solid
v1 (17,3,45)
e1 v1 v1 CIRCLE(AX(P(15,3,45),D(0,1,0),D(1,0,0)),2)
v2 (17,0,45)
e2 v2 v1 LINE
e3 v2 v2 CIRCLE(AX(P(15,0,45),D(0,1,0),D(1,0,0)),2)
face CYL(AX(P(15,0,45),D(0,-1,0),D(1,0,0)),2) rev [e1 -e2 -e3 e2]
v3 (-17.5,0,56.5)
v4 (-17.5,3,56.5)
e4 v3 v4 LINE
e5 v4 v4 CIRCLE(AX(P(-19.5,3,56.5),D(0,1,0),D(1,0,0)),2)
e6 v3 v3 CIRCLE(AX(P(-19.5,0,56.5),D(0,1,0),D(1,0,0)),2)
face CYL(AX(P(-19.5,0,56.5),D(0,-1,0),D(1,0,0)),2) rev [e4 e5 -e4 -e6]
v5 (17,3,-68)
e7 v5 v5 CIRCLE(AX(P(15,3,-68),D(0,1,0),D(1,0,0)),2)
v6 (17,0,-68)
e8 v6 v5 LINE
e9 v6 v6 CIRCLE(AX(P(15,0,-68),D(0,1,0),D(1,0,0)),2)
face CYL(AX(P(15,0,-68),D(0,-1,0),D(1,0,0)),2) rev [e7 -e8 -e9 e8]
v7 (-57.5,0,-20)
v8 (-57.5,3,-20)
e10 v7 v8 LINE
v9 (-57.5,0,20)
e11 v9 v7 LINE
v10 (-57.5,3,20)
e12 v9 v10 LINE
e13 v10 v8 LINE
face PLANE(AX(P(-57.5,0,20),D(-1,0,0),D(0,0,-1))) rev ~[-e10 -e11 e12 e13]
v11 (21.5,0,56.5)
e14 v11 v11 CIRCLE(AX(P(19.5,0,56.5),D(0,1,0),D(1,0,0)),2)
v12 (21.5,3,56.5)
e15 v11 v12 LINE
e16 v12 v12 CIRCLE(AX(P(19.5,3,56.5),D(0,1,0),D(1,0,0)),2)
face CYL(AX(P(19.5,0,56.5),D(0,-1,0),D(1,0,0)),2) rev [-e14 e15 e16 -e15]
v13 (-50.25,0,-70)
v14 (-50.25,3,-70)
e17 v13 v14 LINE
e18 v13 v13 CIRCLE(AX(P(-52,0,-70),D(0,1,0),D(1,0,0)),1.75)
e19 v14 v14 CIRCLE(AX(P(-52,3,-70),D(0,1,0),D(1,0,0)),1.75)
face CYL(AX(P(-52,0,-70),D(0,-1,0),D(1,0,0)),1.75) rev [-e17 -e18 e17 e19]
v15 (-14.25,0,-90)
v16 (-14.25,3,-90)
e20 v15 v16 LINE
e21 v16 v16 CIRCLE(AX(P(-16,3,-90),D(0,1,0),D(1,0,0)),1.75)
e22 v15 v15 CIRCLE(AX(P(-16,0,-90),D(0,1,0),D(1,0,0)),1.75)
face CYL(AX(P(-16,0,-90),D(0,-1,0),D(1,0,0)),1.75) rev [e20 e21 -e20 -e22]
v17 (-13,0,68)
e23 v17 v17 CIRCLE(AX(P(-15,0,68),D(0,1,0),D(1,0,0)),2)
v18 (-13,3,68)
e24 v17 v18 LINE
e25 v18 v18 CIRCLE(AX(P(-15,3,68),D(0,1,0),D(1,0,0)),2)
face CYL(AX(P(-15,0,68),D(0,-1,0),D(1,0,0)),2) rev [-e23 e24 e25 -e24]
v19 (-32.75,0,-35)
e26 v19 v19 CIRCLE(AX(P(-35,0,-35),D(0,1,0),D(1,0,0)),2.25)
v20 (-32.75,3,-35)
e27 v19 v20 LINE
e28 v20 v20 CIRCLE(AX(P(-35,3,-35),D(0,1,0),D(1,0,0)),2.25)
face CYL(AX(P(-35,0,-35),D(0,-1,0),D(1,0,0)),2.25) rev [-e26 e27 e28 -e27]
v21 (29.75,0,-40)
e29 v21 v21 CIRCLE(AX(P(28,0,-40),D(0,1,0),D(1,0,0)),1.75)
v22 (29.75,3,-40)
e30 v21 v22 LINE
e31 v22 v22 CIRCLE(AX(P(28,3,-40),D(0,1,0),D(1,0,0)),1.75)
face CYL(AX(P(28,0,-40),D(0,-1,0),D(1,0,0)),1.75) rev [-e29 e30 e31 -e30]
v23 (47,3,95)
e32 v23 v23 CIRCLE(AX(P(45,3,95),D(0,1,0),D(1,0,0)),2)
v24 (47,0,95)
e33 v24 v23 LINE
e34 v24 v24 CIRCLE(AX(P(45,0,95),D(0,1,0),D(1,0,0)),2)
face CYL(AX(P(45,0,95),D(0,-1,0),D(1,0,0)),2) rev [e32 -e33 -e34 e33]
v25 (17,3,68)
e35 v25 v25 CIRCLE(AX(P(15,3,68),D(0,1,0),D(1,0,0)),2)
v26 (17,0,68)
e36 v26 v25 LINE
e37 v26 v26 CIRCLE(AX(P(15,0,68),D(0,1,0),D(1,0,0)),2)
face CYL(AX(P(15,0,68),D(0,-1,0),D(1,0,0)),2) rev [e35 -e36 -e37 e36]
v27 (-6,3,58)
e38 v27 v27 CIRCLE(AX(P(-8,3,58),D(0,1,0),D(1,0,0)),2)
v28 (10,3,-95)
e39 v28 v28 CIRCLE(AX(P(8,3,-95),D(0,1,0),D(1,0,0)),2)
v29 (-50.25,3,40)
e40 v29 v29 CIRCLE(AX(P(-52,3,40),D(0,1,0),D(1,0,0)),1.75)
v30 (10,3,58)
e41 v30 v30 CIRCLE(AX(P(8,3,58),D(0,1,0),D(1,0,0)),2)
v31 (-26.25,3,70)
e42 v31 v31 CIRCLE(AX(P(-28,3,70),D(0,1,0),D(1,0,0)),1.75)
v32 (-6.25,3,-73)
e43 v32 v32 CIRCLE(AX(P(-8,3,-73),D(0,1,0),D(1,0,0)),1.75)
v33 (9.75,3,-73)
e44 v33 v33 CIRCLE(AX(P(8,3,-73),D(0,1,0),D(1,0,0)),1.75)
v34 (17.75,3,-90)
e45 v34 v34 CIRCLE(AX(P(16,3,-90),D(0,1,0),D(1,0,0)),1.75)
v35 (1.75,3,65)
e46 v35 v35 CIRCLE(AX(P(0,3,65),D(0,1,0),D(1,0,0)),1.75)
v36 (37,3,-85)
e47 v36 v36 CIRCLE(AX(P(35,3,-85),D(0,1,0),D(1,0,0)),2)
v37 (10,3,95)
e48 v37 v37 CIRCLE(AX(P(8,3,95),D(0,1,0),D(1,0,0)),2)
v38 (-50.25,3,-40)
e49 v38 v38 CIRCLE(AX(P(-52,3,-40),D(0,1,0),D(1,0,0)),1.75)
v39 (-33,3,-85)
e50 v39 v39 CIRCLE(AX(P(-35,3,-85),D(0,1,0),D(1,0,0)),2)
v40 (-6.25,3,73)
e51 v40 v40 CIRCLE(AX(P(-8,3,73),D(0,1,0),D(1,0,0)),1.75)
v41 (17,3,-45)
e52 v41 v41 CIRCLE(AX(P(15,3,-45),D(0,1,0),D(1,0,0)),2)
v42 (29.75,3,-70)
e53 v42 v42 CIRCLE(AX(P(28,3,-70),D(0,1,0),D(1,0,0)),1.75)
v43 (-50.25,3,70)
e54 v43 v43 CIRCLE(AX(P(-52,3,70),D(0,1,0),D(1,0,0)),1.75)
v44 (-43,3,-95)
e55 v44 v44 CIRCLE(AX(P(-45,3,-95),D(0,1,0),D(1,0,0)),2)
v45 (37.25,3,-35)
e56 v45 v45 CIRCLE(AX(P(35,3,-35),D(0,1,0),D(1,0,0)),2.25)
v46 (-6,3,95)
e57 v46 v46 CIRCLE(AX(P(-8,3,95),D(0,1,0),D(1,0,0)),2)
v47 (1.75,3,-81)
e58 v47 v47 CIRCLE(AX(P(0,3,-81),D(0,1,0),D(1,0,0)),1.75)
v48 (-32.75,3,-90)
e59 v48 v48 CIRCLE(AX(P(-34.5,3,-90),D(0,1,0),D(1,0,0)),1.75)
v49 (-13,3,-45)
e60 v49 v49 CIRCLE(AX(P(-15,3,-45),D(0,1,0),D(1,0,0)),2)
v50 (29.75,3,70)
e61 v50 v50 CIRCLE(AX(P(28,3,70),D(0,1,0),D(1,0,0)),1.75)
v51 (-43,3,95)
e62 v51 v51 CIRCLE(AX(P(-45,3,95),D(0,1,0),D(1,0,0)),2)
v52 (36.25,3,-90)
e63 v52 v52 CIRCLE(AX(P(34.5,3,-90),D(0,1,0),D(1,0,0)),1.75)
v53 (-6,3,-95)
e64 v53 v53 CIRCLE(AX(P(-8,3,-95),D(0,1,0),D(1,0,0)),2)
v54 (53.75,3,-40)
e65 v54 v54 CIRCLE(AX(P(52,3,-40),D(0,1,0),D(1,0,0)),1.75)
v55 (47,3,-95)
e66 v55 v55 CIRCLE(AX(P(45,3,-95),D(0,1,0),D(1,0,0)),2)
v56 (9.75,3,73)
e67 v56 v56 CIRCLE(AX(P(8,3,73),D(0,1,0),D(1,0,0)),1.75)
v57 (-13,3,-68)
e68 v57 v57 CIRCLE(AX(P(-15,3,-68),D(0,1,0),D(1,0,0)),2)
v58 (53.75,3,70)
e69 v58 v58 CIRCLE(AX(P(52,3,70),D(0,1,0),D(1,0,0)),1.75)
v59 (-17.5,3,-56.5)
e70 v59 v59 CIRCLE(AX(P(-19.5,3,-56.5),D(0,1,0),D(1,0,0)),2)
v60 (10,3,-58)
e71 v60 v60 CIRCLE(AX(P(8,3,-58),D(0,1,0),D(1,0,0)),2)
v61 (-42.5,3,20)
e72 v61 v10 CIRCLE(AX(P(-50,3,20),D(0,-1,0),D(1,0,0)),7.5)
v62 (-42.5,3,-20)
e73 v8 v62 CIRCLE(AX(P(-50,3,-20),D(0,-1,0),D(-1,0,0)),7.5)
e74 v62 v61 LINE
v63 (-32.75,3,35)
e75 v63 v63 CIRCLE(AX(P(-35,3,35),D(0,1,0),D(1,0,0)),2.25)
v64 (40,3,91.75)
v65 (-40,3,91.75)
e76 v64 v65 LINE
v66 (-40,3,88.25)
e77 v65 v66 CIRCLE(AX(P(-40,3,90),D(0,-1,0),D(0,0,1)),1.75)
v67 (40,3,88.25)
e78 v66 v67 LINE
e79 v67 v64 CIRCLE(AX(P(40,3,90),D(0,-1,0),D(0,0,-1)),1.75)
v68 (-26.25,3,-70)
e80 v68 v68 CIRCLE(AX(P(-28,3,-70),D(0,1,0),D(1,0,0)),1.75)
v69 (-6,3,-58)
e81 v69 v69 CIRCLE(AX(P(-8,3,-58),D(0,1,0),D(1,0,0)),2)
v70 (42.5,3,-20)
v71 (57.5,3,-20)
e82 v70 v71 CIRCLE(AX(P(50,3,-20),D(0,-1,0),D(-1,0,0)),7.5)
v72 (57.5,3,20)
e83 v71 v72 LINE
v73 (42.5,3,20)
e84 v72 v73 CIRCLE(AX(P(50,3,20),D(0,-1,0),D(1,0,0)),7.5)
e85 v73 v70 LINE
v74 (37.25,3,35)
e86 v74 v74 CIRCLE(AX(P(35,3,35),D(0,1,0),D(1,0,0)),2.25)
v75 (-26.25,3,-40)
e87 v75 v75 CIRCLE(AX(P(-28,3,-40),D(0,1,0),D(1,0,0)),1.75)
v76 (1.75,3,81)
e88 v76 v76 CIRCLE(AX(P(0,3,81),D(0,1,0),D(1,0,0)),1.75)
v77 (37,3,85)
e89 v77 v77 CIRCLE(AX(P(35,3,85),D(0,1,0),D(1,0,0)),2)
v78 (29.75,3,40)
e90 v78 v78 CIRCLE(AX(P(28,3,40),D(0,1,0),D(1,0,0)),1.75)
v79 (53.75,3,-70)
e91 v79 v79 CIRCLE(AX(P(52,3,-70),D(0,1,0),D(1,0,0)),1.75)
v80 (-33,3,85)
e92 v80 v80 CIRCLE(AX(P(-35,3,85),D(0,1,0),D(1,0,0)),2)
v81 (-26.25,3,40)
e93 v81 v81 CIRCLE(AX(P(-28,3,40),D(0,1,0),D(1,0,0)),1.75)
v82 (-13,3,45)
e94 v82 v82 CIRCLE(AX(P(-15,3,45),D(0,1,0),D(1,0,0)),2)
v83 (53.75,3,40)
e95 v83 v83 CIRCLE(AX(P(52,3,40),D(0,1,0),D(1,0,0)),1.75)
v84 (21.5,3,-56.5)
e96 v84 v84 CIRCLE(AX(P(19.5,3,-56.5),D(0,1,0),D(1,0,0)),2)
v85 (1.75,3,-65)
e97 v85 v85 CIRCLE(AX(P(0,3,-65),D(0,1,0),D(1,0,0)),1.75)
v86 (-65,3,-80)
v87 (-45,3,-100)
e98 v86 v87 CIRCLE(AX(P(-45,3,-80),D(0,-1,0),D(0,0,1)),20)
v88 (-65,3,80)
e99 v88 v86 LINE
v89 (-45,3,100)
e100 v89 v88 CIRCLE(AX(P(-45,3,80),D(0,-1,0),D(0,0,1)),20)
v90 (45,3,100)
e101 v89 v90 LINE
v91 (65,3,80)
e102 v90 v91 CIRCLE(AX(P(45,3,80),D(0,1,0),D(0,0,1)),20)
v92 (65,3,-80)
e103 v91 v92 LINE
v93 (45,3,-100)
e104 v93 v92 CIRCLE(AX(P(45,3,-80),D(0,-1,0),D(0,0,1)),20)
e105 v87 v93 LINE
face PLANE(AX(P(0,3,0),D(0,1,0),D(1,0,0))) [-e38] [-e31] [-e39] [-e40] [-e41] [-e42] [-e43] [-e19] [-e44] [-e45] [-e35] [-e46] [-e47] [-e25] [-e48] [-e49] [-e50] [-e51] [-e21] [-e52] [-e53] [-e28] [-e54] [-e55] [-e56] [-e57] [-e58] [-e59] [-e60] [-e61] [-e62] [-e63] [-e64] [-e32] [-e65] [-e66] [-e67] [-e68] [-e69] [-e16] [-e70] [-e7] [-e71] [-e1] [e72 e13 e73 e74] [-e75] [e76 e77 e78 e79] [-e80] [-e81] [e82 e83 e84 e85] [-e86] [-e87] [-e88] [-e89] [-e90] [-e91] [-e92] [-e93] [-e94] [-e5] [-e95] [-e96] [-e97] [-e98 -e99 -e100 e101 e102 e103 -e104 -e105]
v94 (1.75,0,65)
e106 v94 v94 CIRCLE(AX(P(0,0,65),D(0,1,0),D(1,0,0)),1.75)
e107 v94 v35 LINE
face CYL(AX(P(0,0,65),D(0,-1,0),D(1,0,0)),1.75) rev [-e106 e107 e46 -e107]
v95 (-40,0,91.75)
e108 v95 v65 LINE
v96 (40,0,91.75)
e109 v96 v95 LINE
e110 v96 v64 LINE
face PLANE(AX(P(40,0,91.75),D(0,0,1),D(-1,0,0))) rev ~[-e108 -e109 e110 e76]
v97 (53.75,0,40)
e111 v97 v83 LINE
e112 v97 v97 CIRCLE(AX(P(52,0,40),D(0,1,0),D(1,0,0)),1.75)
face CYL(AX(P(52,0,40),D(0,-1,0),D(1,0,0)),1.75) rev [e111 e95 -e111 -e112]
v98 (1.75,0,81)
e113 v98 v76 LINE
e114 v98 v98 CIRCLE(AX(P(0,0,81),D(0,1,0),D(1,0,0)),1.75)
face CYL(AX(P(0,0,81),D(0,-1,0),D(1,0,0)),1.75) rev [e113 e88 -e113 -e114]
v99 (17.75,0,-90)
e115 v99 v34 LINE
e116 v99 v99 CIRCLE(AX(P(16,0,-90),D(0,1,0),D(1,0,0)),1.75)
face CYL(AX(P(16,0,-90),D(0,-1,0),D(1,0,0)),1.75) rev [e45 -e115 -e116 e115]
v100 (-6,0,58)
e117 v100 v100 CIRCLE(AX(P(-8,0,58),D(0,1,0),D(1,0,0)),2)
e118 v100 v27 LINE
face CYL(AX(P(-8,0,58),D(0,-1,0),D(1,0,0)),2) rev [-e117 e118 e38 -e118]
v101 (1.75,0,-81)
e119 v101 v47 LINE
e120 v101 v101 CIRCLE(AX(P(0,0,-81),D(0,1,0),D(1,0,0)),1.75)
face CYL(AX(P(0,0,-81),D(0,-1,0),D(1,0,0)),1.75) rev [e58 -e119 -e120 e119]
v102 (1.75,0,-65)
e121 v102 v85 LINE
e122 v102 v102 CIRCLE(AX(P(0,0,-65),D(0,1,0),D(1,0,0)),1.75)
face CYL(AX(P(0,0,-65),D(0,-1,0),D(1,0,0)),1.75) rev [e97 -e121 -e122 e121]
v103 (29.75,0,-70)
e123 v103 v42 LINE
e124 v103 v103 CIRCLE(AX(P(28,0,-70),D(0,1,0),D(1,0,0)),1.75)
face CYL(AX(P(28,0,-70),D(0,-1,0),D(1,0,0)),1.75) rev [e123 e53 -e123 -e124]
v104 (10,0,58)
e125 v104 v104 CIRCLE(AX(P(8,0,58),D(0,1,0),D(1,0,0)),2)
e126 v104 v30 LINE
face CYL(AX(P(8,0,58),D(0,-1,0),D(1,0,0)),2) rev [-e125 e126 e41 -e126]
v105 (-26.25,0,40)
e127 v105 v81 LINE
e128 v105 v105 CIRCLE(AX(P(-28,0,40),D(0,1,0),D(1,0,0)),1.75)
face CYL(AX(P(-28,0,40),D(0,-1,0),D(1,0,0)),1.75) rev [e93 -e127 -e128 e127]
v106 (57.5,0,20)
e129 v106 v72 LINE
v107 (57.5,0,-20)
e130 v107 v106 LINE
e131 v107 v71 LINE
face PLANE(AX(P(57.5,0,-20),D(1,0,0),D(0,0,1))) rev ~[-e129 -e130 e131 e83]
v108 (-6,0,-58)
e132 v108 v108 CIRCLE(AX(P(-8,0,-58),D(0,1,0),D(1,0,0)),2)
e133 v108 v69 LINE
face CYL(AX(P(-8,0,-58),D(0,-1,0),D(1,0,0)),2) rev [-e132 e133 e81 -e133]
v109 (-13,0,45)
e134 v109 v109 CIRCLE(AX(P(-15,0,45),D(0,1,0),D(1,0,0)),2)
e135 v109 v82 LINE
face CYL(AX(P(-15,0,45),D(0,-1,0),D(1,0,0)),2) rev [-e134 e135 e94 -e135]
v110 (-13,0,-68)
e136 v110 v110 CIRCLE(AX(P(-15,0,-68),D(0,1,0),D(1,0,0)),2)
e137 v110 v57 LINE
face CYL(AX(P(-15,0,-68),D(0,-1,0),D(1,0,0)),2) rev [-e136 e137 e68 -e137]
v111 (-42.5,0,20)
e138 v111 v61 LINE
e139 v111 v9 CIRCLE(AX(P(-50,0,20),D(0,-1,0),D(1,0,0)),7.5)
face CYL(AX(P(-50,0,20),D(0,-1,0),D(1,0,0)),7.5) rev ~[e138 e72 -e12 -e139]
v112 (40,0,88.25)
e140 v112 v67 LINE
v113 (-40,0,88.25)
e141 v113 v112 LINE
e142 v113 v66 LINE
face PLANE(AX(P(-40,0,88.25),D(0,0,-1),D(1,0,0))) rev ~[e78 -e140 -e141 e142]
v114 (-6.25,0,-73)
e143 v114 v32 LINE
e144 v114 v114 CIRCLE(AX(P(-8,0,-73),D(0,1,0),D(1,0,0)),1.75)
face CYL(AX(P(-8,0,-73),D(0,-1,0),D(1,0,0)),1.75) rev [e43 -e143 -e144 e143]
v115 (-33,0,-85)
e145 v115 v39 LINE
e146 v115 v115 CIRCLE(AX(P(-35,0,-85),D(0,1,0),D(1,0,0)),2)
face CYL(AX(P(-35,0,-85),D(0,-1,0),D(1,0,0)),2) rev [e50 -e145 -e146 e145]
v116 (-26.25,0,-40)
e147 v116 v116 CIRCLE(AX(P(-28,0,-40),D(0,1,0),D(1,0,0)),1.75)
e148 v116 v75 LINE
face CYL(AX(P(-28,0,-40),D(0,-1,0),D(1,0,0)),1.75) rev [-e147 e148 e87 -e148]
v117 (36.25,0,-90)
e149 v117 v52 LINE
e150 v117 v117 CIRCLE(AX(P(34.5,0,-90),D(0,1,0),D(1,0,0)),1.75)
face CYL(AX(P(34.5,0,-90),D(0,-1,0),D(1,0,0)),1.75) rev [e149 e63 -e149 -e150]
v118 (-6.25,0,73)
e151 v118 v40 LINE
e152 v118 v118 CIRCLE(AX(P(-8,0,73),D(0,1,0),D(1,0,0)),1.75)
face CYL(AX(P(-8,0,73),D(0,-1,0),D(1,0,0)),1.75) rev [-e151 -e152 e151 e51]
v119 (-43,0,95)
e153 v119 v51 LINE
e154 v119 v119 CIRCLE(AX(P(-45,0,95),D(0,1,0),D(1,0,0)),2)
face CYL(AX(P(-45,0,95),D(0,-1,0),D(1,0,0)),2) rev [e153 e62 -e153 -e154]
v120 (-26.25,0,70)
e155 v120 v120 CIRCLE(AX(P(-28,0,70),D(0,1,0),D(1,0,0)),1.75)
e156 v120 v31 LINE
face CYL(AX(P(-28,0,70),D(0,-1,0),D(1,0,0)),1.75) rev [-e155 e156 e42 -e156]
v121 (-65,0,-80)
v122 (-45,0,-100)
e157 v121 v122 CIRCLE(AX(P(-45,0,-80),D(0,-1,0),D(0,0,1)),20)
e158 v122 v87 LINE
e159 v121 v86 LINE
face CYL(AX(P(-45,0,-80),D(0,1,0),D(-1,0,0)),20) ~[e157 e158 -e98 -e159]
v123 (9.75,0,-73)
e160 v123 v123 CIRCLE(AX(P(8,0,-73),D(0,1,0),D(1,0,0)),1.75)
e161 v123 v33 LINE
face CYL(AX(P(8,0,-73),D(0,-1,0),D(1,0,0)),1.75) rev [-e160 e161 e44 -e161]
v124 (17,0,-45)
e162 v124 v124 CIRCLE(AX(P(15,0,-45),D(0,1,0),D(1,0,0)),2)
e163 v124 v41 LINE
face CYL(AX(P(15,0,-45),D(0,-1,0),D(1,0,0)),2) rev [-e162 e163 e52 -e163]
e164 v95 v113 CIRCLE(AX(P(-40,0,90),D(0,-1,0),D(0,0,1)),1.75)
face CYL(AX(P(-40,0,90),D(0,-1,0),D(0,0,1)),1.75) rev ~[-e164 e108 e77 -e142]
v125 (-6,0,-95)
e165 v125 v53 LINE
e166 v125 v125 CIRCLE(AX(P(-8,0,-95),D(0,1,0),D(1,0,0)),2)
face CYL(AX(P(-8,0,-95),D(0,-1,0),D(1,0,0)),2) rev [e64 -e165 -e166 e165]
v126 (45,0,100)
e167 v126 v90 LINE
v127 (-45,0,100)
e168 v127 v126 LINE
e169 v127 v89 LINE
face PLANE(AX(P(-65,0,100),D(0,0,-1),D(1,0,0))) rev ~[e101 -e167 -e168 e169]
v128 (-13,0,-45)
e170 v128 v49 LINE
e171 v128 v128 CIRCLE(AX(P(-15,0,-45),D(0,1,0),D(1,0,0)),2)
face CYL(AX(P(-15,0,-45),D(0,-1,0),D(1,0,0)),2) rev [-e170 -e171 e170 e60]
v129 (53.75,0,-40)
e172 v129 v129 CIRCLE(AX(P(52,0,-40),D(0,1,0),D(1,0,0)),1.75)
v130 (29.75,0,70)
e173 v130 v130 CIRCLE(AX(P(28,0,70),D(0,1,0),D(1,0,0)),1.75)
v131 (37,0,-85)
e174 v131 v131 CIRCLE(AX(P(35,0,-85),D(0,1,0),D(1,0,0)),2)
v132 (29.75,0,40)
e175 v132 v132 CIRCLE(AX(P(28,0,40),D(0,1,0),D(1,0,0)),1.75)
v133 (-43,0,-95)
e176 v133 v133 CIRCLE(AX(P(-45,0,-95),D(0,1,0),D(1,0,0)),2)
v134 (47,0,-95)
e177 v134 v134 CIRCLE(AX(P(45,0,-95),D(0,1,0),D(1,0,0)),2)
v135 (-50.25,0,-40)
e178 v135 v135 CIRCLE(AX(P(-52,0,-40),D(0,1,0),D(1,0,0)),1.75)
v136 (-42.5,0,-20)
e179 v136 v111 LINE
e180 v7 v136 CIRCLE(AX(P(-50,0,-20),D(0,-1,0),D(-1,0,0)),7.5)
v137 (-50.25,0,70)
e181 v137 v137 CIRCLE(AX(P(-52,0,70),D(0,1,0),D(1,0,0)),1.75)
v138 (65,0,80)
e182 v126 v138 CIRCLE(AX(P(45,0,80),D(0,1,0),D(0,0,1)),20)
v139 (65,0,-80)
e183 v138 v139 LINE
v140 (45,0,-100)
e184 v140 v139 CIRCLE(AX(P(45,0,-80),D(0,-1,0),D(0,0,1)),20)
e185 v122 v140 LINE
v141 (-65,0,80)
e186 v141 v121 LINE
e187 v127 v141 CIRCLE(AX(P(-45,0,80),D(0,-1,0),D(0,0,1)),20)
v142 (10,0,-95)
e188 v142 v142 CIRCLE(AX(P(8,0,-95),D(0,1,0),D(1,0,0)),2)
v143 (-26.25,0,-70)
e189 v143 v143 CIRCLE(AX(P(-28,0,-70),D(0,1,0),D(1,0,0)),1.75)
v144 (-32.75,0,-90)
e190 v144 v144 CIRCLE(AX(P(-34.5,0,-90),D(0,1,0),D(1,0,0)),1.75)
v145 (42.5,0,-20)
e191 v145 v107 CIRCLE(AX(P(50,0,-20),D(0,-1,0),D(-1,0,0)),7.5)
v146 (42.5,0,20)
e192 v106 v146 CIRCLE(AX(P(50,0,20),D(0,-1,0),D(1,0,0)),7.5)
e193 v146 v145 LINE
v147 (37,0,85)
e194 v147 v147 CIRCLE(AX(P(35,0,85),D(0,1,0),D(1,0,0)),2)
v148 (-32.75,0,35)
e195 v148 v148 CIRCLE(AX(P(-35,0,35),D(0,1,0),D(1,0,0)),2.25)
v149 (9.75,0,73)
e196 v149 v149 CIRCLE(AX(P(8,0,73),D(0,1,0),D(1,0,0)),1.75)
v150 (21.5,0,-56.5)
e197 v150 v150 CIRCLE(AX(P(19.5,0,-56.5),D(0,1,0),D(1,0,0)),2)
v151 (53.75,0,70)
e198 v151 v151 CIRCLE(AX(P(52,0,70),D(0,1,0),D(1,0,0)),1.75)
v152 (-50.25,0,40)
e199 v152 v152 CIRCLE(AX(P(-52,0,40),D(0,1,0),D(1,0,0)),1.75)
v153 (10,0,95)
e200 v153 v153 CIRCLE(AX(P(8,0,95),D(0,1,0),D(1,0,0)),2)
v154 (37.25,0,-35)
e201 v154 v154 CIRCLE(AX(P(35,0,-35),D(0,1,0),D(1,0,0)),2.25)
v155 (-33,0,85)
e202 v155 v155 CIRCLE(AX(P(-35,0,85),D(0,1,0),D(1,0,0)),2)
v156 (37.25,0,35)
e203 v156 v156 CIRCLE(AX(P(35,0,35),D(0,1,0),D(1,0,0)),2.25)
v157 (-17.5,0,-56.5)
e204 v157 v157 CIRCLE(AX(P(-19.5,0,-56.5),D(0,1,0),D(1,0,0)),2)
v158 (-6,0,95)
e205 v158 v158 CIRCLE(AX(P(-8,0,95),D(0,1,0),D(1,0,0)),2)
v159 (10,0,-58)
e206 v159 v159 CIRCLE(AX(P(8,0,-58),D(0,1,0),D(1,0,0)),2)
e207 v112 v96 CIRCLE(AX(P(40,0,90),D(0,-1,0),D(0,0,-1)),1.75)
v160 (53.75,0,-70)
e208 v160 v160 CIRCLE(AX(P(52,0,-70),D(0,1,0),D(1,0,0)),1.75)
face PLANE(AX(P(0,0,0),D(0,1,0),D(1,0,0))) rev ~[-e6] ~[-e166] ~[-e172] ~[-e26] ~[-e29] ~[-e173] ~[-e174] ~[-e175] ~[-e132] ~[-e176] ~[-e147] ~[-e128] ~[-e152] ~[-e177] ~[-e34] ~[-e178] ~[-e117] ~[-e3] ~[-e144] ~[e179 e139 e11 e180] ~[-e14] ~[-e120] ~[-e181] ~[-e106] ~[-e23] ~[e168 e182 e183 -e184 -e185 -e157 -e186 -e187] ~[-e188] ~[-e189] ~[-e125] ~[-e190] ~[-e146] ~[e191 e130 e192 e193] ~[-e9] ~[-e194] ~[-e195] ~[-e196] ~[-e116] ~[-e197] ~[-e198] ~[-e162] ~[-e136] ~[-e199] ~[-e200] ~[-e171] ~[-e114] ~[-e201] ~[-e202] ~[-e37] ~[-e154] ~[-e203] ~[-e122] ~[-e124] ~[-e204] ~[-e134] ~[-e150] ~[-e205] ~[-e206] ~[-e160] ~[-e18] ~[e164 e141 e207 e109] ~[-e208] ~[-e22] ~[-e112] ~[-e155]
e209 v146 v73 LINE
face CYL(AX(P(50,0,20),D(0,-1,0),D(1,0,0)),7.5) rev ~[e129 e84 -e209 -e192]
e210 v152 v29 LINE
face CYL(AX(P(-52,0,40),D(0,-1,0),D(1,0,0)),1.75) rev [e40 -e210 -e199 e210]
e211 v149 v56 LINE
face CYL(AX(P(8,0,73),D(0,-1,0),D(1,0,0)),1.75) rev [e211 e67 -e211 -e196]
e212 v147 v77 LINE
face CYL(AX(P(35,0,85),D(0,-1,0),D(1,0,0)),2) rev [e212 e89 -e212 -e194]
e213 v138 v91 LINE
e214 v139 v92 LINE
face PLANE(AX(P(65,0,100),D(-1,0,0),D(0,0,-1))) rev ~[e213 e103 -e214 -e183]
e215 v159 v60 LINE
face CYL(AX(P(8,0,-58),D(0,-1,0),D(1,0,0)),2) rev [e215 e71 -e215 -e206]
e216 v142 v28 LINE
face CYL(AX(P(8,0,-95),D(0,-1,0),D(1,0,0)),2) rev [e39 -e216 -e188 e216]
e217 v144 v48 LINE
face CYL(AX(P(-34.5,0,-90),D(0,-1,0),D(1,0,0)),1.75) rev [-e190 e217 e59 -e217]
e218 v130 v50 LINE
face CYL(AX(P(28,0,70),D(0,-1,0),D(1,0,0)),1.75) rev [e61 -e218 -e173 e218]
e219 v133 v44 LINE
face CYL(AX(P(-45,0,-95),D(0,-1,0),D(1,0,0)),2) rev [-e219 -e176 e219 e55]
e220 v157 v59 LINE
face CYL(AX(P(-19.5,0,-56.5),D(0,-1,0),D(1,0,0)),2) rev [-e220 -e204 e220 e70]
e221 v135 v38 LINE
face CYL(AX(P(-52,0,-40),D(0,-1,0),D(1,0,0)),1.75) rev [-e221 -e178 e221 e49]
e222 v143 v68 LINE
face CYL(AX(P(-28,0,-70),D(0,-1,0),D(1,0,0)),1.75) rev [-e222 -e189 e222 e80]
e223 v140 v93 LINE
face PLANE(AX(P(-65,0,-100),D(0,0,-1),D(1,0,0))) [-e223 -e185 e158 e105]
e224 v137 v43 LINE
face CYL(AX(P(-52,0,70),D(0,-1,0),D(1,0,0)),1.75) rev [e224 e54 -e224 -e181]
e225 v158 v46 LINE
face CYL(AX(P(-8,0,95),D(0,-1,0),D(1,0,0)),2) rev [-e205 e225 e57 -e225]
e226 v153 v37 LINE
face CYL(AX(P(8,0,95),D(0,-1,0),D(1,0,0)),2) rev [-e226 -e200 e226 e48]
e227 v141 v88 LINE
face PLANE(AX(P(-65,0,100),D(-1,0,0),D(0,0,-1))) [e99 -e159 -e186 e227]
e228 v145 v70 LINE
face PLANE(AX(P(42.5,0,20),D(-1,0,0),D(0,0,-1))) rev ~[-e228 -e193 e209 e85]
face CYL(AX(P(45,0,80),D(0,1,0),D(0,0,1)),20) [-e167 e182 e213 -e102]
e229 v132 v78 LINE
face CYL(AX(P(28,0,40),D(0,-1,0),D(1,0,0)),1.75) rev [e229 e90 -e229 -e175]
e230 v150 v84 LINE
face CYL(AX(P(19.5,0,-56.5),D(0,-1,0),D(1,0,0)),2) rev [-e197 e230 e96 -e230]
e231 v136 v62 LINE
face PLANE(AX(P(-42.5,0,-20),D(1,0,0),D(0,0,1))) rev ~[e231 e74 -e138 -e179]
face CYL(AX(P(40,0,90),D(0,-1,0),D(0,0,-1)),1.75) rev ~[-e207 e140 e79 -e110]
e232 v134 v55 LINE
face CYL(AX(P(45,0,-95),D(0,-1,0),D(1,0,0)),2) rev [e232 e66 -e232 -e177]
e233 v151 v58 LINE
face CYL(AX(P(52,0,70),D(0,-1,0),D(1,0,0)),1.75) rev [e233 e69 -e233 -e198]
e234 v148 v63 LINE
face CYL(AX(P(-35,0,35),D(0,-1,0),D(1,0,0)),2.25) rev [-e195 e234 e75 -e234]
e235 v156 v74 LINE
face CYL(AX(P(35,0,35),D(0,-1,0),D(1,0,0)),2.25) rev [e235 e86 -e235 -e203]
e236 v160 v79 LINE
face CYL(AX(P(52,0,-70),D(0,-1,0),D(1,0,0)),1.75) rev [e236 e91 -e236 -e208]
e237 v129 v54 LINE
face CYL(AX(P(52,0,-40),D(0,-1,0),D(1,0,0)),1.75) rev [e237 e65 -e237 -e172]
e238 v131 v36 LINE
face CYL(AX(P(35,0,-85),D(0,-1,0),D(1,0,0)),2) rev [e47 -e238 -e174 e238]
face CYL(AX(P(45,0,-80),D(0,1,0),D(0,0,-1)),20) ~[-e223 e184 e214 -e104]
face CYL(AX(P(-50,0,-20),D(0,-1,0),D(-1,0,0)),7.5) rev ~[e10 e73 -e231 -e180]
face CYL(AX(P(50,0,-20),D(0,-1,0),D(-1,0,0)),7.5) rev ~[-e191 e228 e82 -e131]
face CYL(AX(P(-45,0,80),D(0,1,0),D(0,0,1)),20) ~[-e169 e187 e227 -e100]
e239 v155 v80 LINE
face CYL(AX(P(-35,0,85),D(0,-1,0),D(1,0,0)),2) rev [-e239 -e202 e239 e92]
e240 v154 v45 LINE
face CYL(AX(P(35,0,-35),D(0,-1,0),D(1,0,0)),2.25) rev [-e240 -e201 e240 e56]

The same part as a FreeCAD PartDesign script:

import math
import FreeCAD as App
import Part
import Sketcher

V = App.Vector


def edges_at(feature, points):
    """Names of the edges that pass closest to the given points."""
    edges = feature.Shape.Edges
    near = lambda p: min(range(len(edges)), key=lambda i: edges[i].distToShape(Part.Vertex(*p))[0])
    return sorted({f"Edge{near(p) + 1}" for p in points})

doc = App.newDocument("Part")
body = doc.addObject("PartDesign::Body", "Body")

sketch1 = body.newObject("Sketcher::SketchObject", "Sketch")
sketch1.AttachmentSupport = (doc.getObject("XZ_Plane"), [""])
sketch1.MapMode = "FlatFace"
sketch1.addGeometry(Part.LineSegment(V(-65, -100, 0), V(-65, 100, 0)), False)
sketch1.addGeometry(Part.LineSegment(V(-65, 100, 0), V(65, 100, 0)), False)
sketch1.addGeometry(Part.LineSegment(V(65, 100, 0), V(65, -100, 0)), False)
sketch1.addGeometry(Part.LineSegment(V(65, -100, 0), V(-65, -100, 0)), False)
sketch1.addGeometry(Part.Circle(V(-45, 95, 0), V(0, 0, 1), 2), False)
sketch1.addGeometry(Part.Circle(V(-35, 85, 0), V(0, 0, 1), 2), False)
sketch1.addGeometry(Part.Circle(V(-52, 70, 0), V(0, 0, 1), 1.8), False)
sketch1.addGeometry(Part.Circle(V(-8, 95, 0), V(0, 0, 1), 2), False)
sketch1.addGeometry(Part.Circle(V(-8, 73, 0), V(0, 0, 1), 1.8), False)
sketch1.addGeometry(Part.Circle(V(-28, 70, 0), V(0, 0, 1), 1.8), False)
sketch1.addGeometry(Part.Circle(V(-15, 68, 0), V(0, 0, 1), 2), False)
sketch1.addGeometry(Part.Circle(V(-19.5, 56.5, 0), V(0, 0, 1), 2), False)
sketch1.addGeometry(Part.Circle(V(-8, 58, 0), V(0, 0, 1), 2), False)
sketch1.addGeometry(Part.Circle(V(-52, 40, 0), V(0, 0, 1), 1.8), False)
sketch1.addGeometry(Part.Circle(V(-35, 35, 0), V(0, 0, 1), 2.2), False)
sketch1.addGeometry(Part.Circle(V(-28, 40, 0), V(0, 0, 1), 1.8), False)
sketch1.addGeometry(Part.Circle(V(-15, 45, 0), V(0, 0, 1), 2), False)
sketch1.addGeometry(Part.ArcOfCircle(Part.Circle(V(-40, 90, 0), V(0, 0, 1), 1.8), math.radians(90), math.radians(270)), False)
sketch1.addGeometry(Part.LineSegment(V(-40, 88.2, 0), V(40, 88.2, 0)), False)
sketch1.addGeometry(Part.ArcOfCircle(Part.Circle(V(40, 90, 0), V(0, 0, 1), 1.8), math.radians(-90), math.radians(90)), False)
sketch1.addGeometry(Part.LineSegment(V(40, 91.8, 0), V(-40, 91.8, 0)), False)
sketch1.addGeometry(Part.Circle(V(8, 95, 0), V(0, 0, 1), 2), False)
sketch1.addGeometry(Part.Circle(V(0, 81, 0), V(0, 0, 1), 1.8), False)
sketch1.addGeometry(Part.Circle(V(8, 73, 0), V(0, 0, 1), 1.8), False)
sketch1.addGeometry(Part.Circle(V(0, 65, 0), V(0, 0, 1), 1.8), False)
sketch1.addGeometry(Part.Circle(V(8, 58, 0), V(0, 0, 1), 2), False)
sketch1.addGeometry(Part.Circle(V(15, 68, 0), V(0, 0, 1), 2), False)
sketch1.addGeometry(Part.Circle(V(28, 70, 0), V(0, 0, 1), 1.8), False)
sketch1.addGeometry(Part.Circle(V(19.5, 56.5, 0), V(0, 0, 1), 2), False)
sketch1.addGeometry(Part.Circle(V(35, 85, 0), V(0, 0, 1), 2), False)
sketch1.addGeometry(Part.Circle(V(45, 95, 0), V(0, 0, 1), 2), False)
sketch1.addGeometry(Part.Circle(V(52, 70, 0), V(0, 0, 1), 1.8), False)
sketch1.addGeometry(Part.Circle(V(15, 45, 0), V(0, 0, 1), 2), False)
sketch1.addGeometry(Part.Circle(V(28, 40, 0), V(0, 0, 1), 1.8), False)
sketch1.addGeometry(Part.Circle(V(35, 35, 0), V(0, 0, 1), 2.2), False)
sketch1.addGeometry(Part.Circle(V(52, 40, 0), V(0, 0, 1), 1.8), False)
sketch1.addGeometry(Part.ArcOfCircle(Part.Circle(V(-50, 20, 0), V(0, 0, 1), 7.5), math.radians(0), math.radians(180)), False)
sketch1.addGeometry(Part.LineSegment(V(-57.5, 20, 0), V(-57.5, -20, 0)), False)
sketch1.addGeometry(Part.ArcOfCircle(Part.Circle(V(-50, -20, 0), V(0, 0, 1), 7.5), math.radians(180), math.radians(360)), False)
sketch1.addGeometry(Part.LineSegment(V(-42.5, -20, 0), V(-42.5, 20, 0)), False)
sketch1.addGeometry(Part.Circle(V(-52, -40, 0), V(0, 0, 1), 1.8), False)
sketch1.addGeometry(Part.Circle(V(-35, -35, 0), V(0, 0, 1), 2.2), False)
sketch1.addGeometry(Part.Circle(V(-28, -40, 0), V(0, 0, 1), 1.8), False)
sketch1.addGeometry(Part.Circle(V(-15, -45, 0), V(0, 0, 1), 2), False)
sketch1.addGeometry(Part.Circle(V(-52, -70, 0), V(0, 0, 1), 1.8), False)
sketch1.addGeometry(Part.Circle(V(-45, -95, 0), V(0, 0, 1), 2), False)
sketch1.addGeometry(Part.Circle(V(-35, -85, 0), V(0, 0, 1), 2), False)
sketch1.addGeometry(Part.Circle(V(-34.5, -90, 0), V(0, 0, 1), 1.8), False)
sketch1.addGeometry(Part.Circle(V(-19.5, -56.5, 0), V(0, 0, 1), 2), False)
sketch1.addGeometry(Part.Circle(V(-28, -70, 0), V(0, 0, 1), 1.8), False)
sketch1.addGeometry(Part.Circle(V(-15, -68, 0), V(0, 0, 1), 2), False)
sketch1.addGeometry(Part.Circle(V(-8, -58, 0), V(0, 0, 1), 2), False)
sketch1.addGeometry(Part.Circle(V(-16, -90, 0), V(0, 0, 1), 1.8), False)
sketch1.addGeometry(Part.Circle(V(-8, -73, 0), V(0, 0, 1), 1.8), False)
sketch1.addGeometry(Part.Circle(V(-8, -95, 0), V(0, 0, 1), 2), False)
sketch1.addGeometry(Part.Circle(V(15, -45, 0), V(0, 0, 1), 2), False)
sketch1.addGeometry(Part.Circle(V(28, -40, 0), V(0, 0, 1), 1.8), False)
sketch1.addGeometry(Part.ArcOfCircle(Part.Circle(V(50, 20, 0), V(0, 0, 1), 7.5), math.radians(0), math.radians(180)), False)
sketch1.addGeometry(Part.LineSegment(V(42.5, 20, 0), V(42.5, -20, 0)), False)
sketch1.addGeometry(Part.ArcOfCircle(Part.Circle(V(50, -20, 0), V(0, 0, 1), 7.5), math.radians(180), math.radians(360)), False)
sketch1.addGeometry(Part.LineSegment(V(57.5, -20, 0), V(57.5, 20, 0)), False)
sketch1.addGeometry(Part.Circle(V(35, -35, 0), V(0, 0, 1), 2.2), False)
sketch1.addGeometry(Part.Circle(V(52, -40, 0), V(0, 0, 1), 1.8), False)
sketch1.addGeometry(Part.Circle(V(8, -58, 0), V(0, 0, 1), 2), False)
sketch1.addGeometry(Part.Circle(V(0, -65, 0), V(0, 0, 1), 1.8), False)
sketch1.addGeometry(Part.Circle(V(19.5, -56.5, 0), V(0, 0, 1), 2), False)
sketch1.addGeometry(Part.Circle(V(15, -68, 0), V(0, 0, 1), 2), False)
sketch1.addGeometry(Part.Circle(V(28, -70, 0), V(0, 0, 1), 1.8), False)
sketch1.addGeometry(Part.Circle(V(0, -81, 0), V(0, 0, 1), 1.8), False)
sketch1.addGeometry(Part.Circle(V(8, -73, 0), V(0, 0, 1), 1.8), False)
sketch1.addGeometry(Part.Circle(V(8, -95, 0), V(0, 0, 1), 2), False)
sketch1.addGeometry(Part.Circle(V(16, -90, 0), V(0, 0, 1), 1.8), False)
sketch1.addGeometry(Part.Circle(V(52, -70, 0), V(0, 0, 1), 1.8), False)
sketch1.addGeometry(Part.Circle(V(35, -85, 0), V(0, 0, 1), 2), False)
sketch1.addGeometry(Part.Circle(V(34.5, -90, 0), V(0, 0, 1), 1.8), False)
sketch1.addGeometry(Part.Circle(V(45, -95, 0), V(0, 0, 1), 2), False)
sketch1.addConstraint(Sketcher.Constraint("Coincident", 0, 2, 1, 1))
sketch1.addConstraint(Sketcher.Constraint("Coincident", 1, 2, 2, 1))
sketch1.addConstraint(Sketcher.Constraint("Coincident", 2, 2, 3, 1))
sketch1.addConstraint(Sketcher.Constraint("Coincident", 3, 2, 0, 1))
sketch1.addConstraint(Sketcher.Constraint("Tangent", 17, 2, 18, 1))
sketch1.addConstraint(Sketcher.Constraint("Tangent", 18, 2, 19, 1))
sketch1.addConstraint(Sketcher.Constraint("Tangent", 19, 2, 20, 1))
sketch1.addConstraint(Sketcher.Constraint("Tangent", 20, 2, 17, 1))
sketch1.addConstraint(Sketcher.Constraint("Tangent", 36, 2, 37, 1))
sketch1.addConstraint(Sketcher.Constraint("Tangent", 37, 2, 38, 1))
sketch1.addConstraint(Sketcher.Constraint("Tangent", 38, 2, 39, 1))
sketch1.addConstraint(Sketcher.Constraint("Tangent", 39, 2, 36, 1))
sketch1.addConstraint(Sketcher.Constraint("Tangent", 57, 2, 58, 1))
sketch1.addConstraint(Sketcher.Constraint("Tangent", 58, 2, 59, 1))
sketch1.addConstraint(Sketcher.Constraint("Tangent", 59, 2, 60, 1))
sketch1.addConstraint(Sketcher.Constraint("Tangent", 60, 2, 57, 1))
sketch1.addConstraint(Sketcher.Constraint("Vertical", 0))
sketch1.addConstraint(Sketcher.Constraint("Horizontal", 1))
sketch1.addConstraint(Sketcher.Constraint("Vertical", 2))
sketch1.addConstraint(Sketcher.Constraint("Horizontal", 3))
sketch1.addConstraint(Sketcher.Constraint("Horizontal", 18))
sketch1.addConstraint(Sketcher.Constraint("Horizontal", 20))
sketch1.addConstraint(Sketcher.Constraint("Vertical", 37))
sketch1.addConstraint(Sketcher.Constraint("Vertical", 39))
sketch1.addConstraint(Sketcher.Constraint("Vertical", 58))
sketch1.addConstraint(Sketcher.Constraint("Vertical", 60))
sketch1.addConstraint(Sketcher.Constraint("Equal", 4, 5))
sketch1.addConstraint(Sketcher.Constraint("Equal", 5, 7))
sketch1.addConstraint(Sketcher.Constraint("Equal", 6, 8))
sketch1.addConstraint(Sketcher.Constraint("Equal", 8, 9))
sketch1.addConstraint(Sketcher.Constraint("Equal", 7, 10))
sketch1.addConstraint(Sketcher.Constraint("Equal", 10, 11))
sketch1.addConstraint(Sketcher.Constraint("Equal", 11, 12))
sketch1.addConstraint(Sketcher.Constraint("Equal", 9, 13))
sketch1.addConstraint(Sketcher.Constraint("Equal", 13, 15))
sketch1.addConstraint(Sketcher.Constraint("Equal", 12, 16))
sketch1.addConstraint(Sketcher.Constraint("Equal", 15, 17))
sketch1.addConstraint(Sketcher.Constraint("Equal", 16, 21))
sketch1.addConstraint(Sketcher.Constraint("Equal", 19, 22))
sketch1.addConstraint(Sketcher.Constraint("Equal", 22, 23))
sketch1.addConstraint(Sketcher.Constraint("Equal", 23, 24))
sketch1.addConstraint(Sketcher.Constraint("Equal", 21, 25))
sketch1.addConstraint(Sketcher.Constraint("Equal", 25, 26))
sketch1.addConstraint(Sketcher.Constraint("Equal", 24, 27))
sketch1.addConstraint(Sketcher.Constraint("Equal", 26, 28))
sketch1.addConstraint(Sketcher.Constraint("Equal", 28, 29))
sketch1.addConstraint(Sketcher.Constraint("Equal", 29, 30))
sketch1.addConstraint(Sketcher.Constraint("Equal", 27, 31))
sketch1.addConstraint(Sketcher.Constraint("Equal", 30, 32))
sketch1.addConstraint(Sketcher.Constraint("Equal", 31, 33))
sketch1.addConstraint(Sketcher.Constraint("Equal", 14, 34))
sketch1.addConstraint(Sketcher.Constraint("Equal", 33, 35))
sketch1.addConstraint(Sketcher.Constraint("Equal", 35, 40))
sketch1.addConstraint(Sketcher.Constraint("Equal", 34, 41))
sketch1.addConstraint(Sketcher.Constraint("Equal", 40, 42))
sketch1.addConstraint(Sketcher.Constraint("Equal", 32, 43))
sketch1.addConstraint(Sketcher.Constraint("Equal", 42, 44))
sketch1.addConstraint(Sketcher.Constraint("Equal", 43, 45))
sketch1.addConstraint(Sketcher.Constraint("Equal", 45, 46))
sketch1.addConstraint(Sketcher.Constraint("Equal", 44, 47))
sketch1.addConstraint(Sketcher.Constraint("Equal", 46, 48))
sketch1.addConstraint(Sketcher.Constraint("Equal", 47, 49))
sketch1.addConstraint(Sketcher.Constraint("Equal", 48, 50))
sketch1.addConstraint(Sketcher.Constraint("Equal", 50, 51))
sketch1.addConstraint(Sketcher.Constraint("Equal", 49, 52))
sketch1.addConstraint(Sketcher.Constraint("Equal", 52, 53))
sketch1.addConstraint(Sketcher.Constraint("Equal", 51, 54))
sketch1.addConstraint(Sketcher.Constraint("Equal", 54, 55))
sketch1.addConstraint(Sketcher.Constraint("Equal", 53, 56))
sketch1.addConstraint(Sketcher.Constraint("Equal", 38, 57))
sketch1.addConstraint(Sketcher.Constraint("Equal", 41, 61))
sketch1.addConstraint(Sketcher.Constraint("Equal", 56, 62))
sketch1.addConstraint(Sketcher.Constraint("Equal", 55, 63))
sketch1.addConstraint(Sketcher.Constraint("Equal", 62, 64))
sketch1.addConstraint(Sketcher.Constraint("Equal", 63, 65))
sketch1.addConstraint(Sketcher.Constraint("Equal", 65, 66))
sketch1.addConstraint(Sketcher.Constraint("Equal", 64, 67))
sketch1.addConstraint(Sketcher.Constraint("Equal", 67, 68))
sketch1.addConstraint(Sketcher.Constraint("Equal", 68, 69))
sketch1.addConstraint(Sketcher.Constraint("Equal", 66, 70))
sketch1.addConstraint(Sketcher.Constraint("Equal", 69, 71))
sketch1.addConstraint(Sketcher.Constraint("Equal", 71, 72))
sketch1.addConstraint(Sketcher.Constraint("Equal", 70, 73))
sketch1.addConstraint(Sketcher.Constraint("Equal", 72, 74))
sketch1.addConstraint(Sketcher.Constraint("Equal", 73, 75))
sketch1.addConstraint(Sketcher.Constraint("Symmetric", 35, 3, 40, 3, -1, 1))
sketch1.addConstraint(Sketcher.Constraint("Symmetric", 34, 3, 41, 3, -1, 1))
sketch1.addConstraint(Sketcher.Constraint("Symmetric", 33, 3, 42, 3, -1, 1))
sketch1.addConstraint(Sketcher.Constraint("Symmetric", 32, 3, 43, 3, -1, 1))
sketch1.addConstraint(Sketcher.Constraint("Symmetric", 31, 3, 44, 3, -1, 1))
sketch1.addConstraint(Sketcher.Constraint("Symmetric", 30, 3, 45, 3, -1, 1))
sketch1.addConstraint(Sketcher.Constraint("Symmetric", 29, 3, 46, 3, -1, 1))
sketch1.addConstraint(Sketcher.Constraint("Symmetric", 28, 3, 48, 3, -1, 1))
sketch1.addConstraint(Sketcher.Constraint("Symmetric", 27, 3, 49, 3, -1, 1))
sketch1.addConstraint(Sketcher.Constraint("Symmetric", 26, 3, 50, 3, -1, 1))
sketch1.addConstraint(Sketcher.Constraint("Symmetric", 25, 3, 51, 3, -1, 1))
sketch1.addConstraint(Sketcher.Constraint("Symmetric", 23, 3, 53, 3, -1, 1))
sketch1.addConstraint(Sketcher.Constraint("Symmetric", 21, 3, 54, 3, -1, 1))
sketch1.addConstraint(Sketcher.Constraint("Symmetric", 16, 3, 55, 3, -1, 1))
sketch1.addConstraint(Sketcher.Constraint("Symmetric", 15, 3, 56, 3, -1, 1))
sketch1.addConstraint(Sketcher.Constraint("Symmetric", 38, 3, 57, 3, -1, 1))
sketch1.addConstraint(Sketcher.Constraint("Symmetric", 14, 3, 61, 3, -1, 1))
sketch1.addConstraint(Sketcher.Constraint("Symmetric", 13, 3, 62, 3, -1, 1))
sketch1.addConstraint(Sketcher.Constraint("Symmetric", 12, 3, 63, 3, -1, 1))
sketch1.addConstraint(Sketcher.Constraint("Symmetric", 24, 3, 64, 3, -1, 1))
sketch1.addConstraint(Sketcher.Constraint("Symmetric", 11, 3, 65, 3, -1, 1))
sketch1.addConstraint(Sketcher.Constraint("Symmetric", 10, 3, 66, 3, -1, 1))
sketch1.addConstraint(Sketcher.Constraint("Symmetric", 9, 3, 67, 3, -1, 1))
sketch1.addConstraint(Sketcher.Constraint("Symmetric", 22, 3, 68, 3, -1, 1))
sketch1.addConstraint(Sketcher.Constraint("Symmetric", 8, 3, 69, 3, -1, 1))
sketch1.addConstraint(Sketcher.Constraint("Symmetric", 7, 3, 70, 3, -1, 1))
sketch1.addConstraint(Sketcher.Constraint("Symmetric", 6, 3, 72, 3, -1, 1))
sketch1.addConstraint(Sketcher.Constraint("Symmetric", 5, 3, 73, 3, -1, 1))
sketch1.addConstraint(Sketcher.Constraint("Symmetric", 4, 3, 75, 3, -1, 1))
sketch1.addConstraint(Sketcher.Constraint("Symmetric", 0, 2, 2, 2, -1, 1))
sketch1.addConstraint(Sketcher.Constraint("Symmetric", 7, 3, 21, 3, -2))
sketch1.addConstraint(Sketcher.Constraint("Symmetric", 8, 3, 23, 3, -2))
sketch1.addConstraint(Sketcher.Constraint("Symmetric", 12, 3, 25, 3, -2))
sketch1.addConstraint(Sketcher.Constraint("Symmetric", 10, 3, 26, 3, -2))
sketch1.addConstraint(Sketcher.Constraint("Symmetric", 9, 3, 27, 3, -2))
sketch1.addConstraint(Sketcher.Constraint("Symmetric", 11, 3, 28, 3, -2))
sketch1.addConstraint(Sketcher.Constraint("Symmetric", 5, 3, 29, 3, -2))
sketch1.addConstraint(Sketcher.Constraint("Symmetric", 4, 3, 30, 3, -2))
sketch1.addConstraint(Sketcher.Constraint("Symmetric", 6, 3, 31, 3, -2))
sketch1.addConstraint(Sketcher.Constraint("Symmetric", 16, 3, 32, 3, -2))
sketch1.addConstraint(Sketcher.Constraint("Symmetric", 15, 3, 33, 3, -2))
sketch1.addConstraint(Sketcher.Constraint("Symmetric", 14, 3, 34, 3, -2))
sketch1.addConstraint(Sketcher.Constraint("Symmetric", 13, 3, 35, 3, -2))
sketch1.addConstraint(Sketcher.Constraint("Symmetric", 52, 3, 71, 3, -2))
sketch1.addConstraint(Sketcher.Constraint("Symmetric", 47, 3, 74, 3, -2))
sketch1.addConstraint(Sketcher.Constraint("PointOnObject", 22, 3, -2))
sketch1.addConstraint(Sketcher.Constraint("PointOnObject", 24, 3, -2))
sketch1.addConstraint(Sketcher.Constraint("Horizontal", 4, 3, 7, 3))
sketch1.addConstraint(Sketcher.Constraint("Horizontal", 6, 3, 9, 3))
sketch1.addConstraint(Sketcher.Constraint("Horizontal", 13, 3, 15, 3))
sketch1.addConstraint(Sketcher.Constraint("Horizontal", 47, 3, 52, 3))
sketch1.addConstraint(Sketcher.Constraint("Horizontal", 36, 3, 57, 3))
sketch1.addConstraint(Sketcher.Constraint("Horizontal", 38, 3, 59, 3))
sketch1.addConstraint(Sketcher.Constraint("Vertical", 7, 3, 8, 3))
sketch1.addConstraint(Sketcher.Constraint("Vertical", 8, 3, 12, 3))
sketch1.addConstraint(Sketcher.Constraint("Vertical", 6, 3, 13, 3))
sketch1.addConstraint(Sketcher.Constraint("Vertical", 5, 3, 14, 3))
sketch1.addConstraint(Sketcher.Constraint("Vertical", 9, 3, 15, 3))
sketch1.addConstraint(Sketcher.Constraint("Vertical", 10, 3, 16, 3))
sketch1.addConstraint(Sketcher.Constraint("Diameter", 4, 4.0))
sketch1.addConstraint(Sketcher.Constraint("Diameter", 6, 3.5))
sketch1.addConstraint(Sketcher.Constraint("Diameter", 14, 4.5))
sketch1.addConstraint(Sketcher.Constraint("Radius", 36, 7.5))
sketch1.addConstraint(Sketcher.Constraint("DistanceX", 1, 1, 1, 2, 130.0))
sketch1.addConstraint(Sketcher.Constraint("DistanceX", 18, 1, 18, 2, 80.0))
sketch1.addConstraint(Sketcher.Constraint("DistanceY", 0, 1, 0, 2, 200.0))
sketch1.addConstraint(Sketcher.Constraint("DistanceY", 37, 2, 37, 1, 40.0))
sketch1.addConstraint(Sketcher.Constraint("DistanceX", 4, 3, -1, 1, 45.0))
sketch1.addConstraint(Sketcher.Constraint("DistanceY", -1, 1, 4, 3, 95.0))
sketch1.addConstraint(Sketcher.Constraint("DistanceX", 5, 3, -1, 1, 35.0))
sketch1.addConstraint(Sketcher.Constraint("DistanceY", -1, 1, 5, 3, 85.0))
sketch1.addConstraint(Sketcher.Constraint("DistanceX", 6, 3, -1, 1, 52.0))
sketch1.addConstraint(Sketcher.Constraint("DistanceY", -1, 1, 6, 3, 70.0))
sketch1.addConstraint(Sketcher.Constraint("DistanceX", 7, 3, -1, 1, 8.0))
sketch1.addConstraint(Sketcher.Constraint("DistanceY", -1, 1, 8, 3, 73.0))
sketch1.addConstraint(Sketcher.Constraint("DistanceX", 9, 3, -1, 1, 28.0))
sketch1.addConstraint(Sketcher.Constraint("DistanceX", 10, 3, -1, 1, 15.0))
sketch1.addConstraint(Sketcher.Constraint("DistanceY", -1, 1, 10, 3, 68.0))
sketch1.addConstraint(Sketcher.Constraint("DistanceY", -1, 1, 12, 3, 58.0))
sketch1.addConstraint(Sketcher.Constraint("DistanceY", -1, 1, 13, 3, 40.0))
sketch1.addConstraint(Sketcher.Constraint("DistanceY", -1, 1, 14, 3, 35.0))
sketch1.addConstraint(Sketcher.Constraint("DistanceY", -1, 1, 16, 3, 45.0))
sketch1.addConstraint(Sketcher.Constraint("DistanceX", 17, 3, -1, 1, 40.0))
sketch1.addConstraint(Sketcher.Constraint("DistanceY", -1, 1, 17, 3, 90.0))
sketch1.addConstraint(Sketcher.Constraint("DistanceY", -1, 1, 22, 3, 81.0))
sketch1.addConstraint(Sketcher.Constraint("DistanceY", -1, 1, 24, 3, 65.0))
sketch1.addConstraint(Sketcher.Constraint("DistanceX", 36, 3, -1, 1, 50.0))
sketch1.addConstraint(Sketcher.Constraint("DistanceY", 47, 3, -1, 1, 90.0))
sketch1.addConstraint(Sketcher.Constraint("DistanceX", 52, 3, -1, 1, 16.0))
sketch1.addConstraint(Sketcher.Constraint("DistanceX", 11, 3, -1, 1, 19.5))
sketch1.addConstraint(Sketcher.Constraint("DistanceY", -1, 1, 11, 3, 56.5))
sketch1.addConstraint(Sketcher.Constraint("DistanceX", 47, 3, -1, 1, 34.5))
pad1 = body.newObject("PartDesign::Pad", "Pad")
pad1.Profile = sketch1
pad1.Length = 3
pad1.Reversed = True
doc.recompute()

fillet = body.newObject("PartDesign::Fillet", "Fillet")
fillet.Base = (pad1, edges_at(pad1, [(65, 1.5, 100)]))
fillet.Radius = 20
doc.recompute()

fillet2 = body.newObject("PartDesign::Fillet", "Fillet001")
fillet2.Base = (fillet, edges_at(fillet, [(-65, 1.5, 100)]))
fillet2.Radius = 20
doc.recompute()

fillet3 = body.newObject("PartDesign::Fillet", "Fillet002")
fillet3.Base = (fillet2, edges_at(fillet2, [(-65, 1.5, -100)]))
fillet3.Radius = 20
doc.recompute()

fillet4 = body.newObject("PartDesign::Fillet", "Fillet003")
fillet4.Base = (fillet3, edges_at(fillet3, [(65, 1.5, -100)]))
fillet4.Radius = 20

doc.recompute()
